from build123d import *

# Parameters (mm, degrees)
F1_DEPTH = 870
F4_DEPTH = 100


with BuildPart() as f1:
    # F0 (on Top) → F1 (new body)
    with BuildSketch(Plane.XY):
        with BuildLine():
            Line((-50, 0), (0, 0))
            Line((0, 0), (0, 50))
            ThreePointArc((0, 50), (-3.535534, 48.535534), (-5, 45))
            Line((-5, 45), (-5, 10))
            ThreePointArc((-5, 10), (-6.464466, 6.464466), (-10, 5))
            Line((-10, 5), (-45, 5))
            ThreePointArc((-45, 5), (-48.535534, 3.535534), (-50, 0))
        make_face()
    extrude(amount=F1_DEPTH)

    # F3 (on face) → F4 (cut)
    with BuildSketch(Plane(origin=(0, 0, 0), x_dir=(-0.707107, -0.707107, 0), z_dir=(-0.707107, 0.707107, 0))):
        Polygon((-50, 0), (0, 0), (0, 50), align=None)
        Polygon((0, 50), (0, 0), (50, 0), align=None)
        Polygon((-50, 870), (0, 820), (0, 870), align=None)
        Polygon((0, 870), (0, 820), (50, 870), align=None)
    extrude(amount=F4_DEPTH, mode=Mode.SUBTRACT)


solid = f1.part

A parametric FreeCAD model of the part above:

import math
import FreeCAD as App
import Part
import Sketcher
from FreeCAD import Vector

doc = App.newDocument("Part")
body = doc.addObject("PartDesign::Body", "Body")

# Sketch on XY plane
sketch1 = body.newObject("Sketcher::SketchObject", "Sketch")
sketch1.AttachmentSupport = (doc.getObject("XY_Plane"), [""])
sketch1.MapMode = "FlatFace"
sketch1.addGeometry(Part.LineSegment(Vector(-50, 0, 0), Vector(0, 0, 0)), False)
sketch1.addGeometry(Part.LineSegment(Vector(0, 0, 0), Vector(0, 50, 0)), False)
sketch1.addGeometry(Part.ArcOfCircle(Part.Circle(Vector(0, 45, 0), Vector(0, 0, 1), 5), math.radians(90), math.radians(180)), False)
sketch1.addGeometry(Part.LineSegment(Vector(-5, 45, 0), Vector(-5, 10, 0)), False)
sketch1.addGeometry(Part.ArcOfCircle(Part.Circle(Vector(-10, 10, 0), Vector(0, 0, 1), 5), math.radians(-90), math.radians(0)), False)
sketch1.addGeometry(Part.LineSegment(Vector(-10, 5, 0), Vector(-45, 5, 0)), False)
sketch1.addGeometry(Part.ArcOfCircle(Part.Circle(Vector(-45, 0, 0), Vector(0, 0, 1), 5), math.radians(90), math.radians(180)), False)
sketch1.addConstraint(Sketcher.Constraint("Coincident", 0, 2, 1, 1))
sketch1.addConstraint(Sketcher.Constraint("Coincident", 1, 2, 2, 1))
sketch1.addConstraint(Sketcher.Constraint("Tangent", 2, 2, 3, 1))
sketch1.addConstraint(Sketcher.Constraint("Tangent", 3, 2, 4, 2))
sketch1.addConstraint(Sketcher.Constraint("Tangent", 4, 1, 5, 1))
sketch1.addConstraint(Sketcher.Constraint("Tangent", 5, 2, 6, 1))
sketch1.addConstraint(Sketcher.Constraint("Coincident", 6, 2, 0, 1))
sketch1.addConstraint(Sketcher.Constraint("Horizontal", 0))
sketch1.addConstraint(Sketcher.Constraint("Vertical", 1))
sketch1.addConstraint(Sketcher.Constraint("Vertical", 3))
sketch1.addConstraint(Sketcher.Constraint("Horizontal", 5))
sketch1.addConstraint(Sketcher.Constraint("Coincident", 0, 2, -1, 1))
sketch1.addConstraint(Sketcher.Constraint("Equal", 2, 4))
sketch1.addConstraint(Sketcher.Constraint("Equal", 4, 6))
sketch1.addConstraint(Sketcher.Constraint("PointOnObject", 2, 3, -2))
sketch1.addConstraint(Sketcher.Constraint("PointOnObject", 6, 3, -1))
sketch1.addConstraint(Sketcher.Constraint("Equal", 0, 1))
sketch1.addConstraint(Sketcher.Constraint("Radius", 2, 5.0))
sketch1.addConstraint(Sketcher.Constraint("DistanceX", 0, 1, 0, 2, 50.0))
pad1 = body.newObject("PartDesign::Pad", "Pad")
pad1.Profile = sketch1
pad1.Length = 870

# Sketch on an angled plane
sketch2 = body.newObject("Sketcher::SketchObject", "Sketch001")
sketch2.Placement = App.Placement(Vector(0, 0, 0), App.Rotation(Vector(-0.707106781, -0.707106781, 0), Vector(0, 0, 0.999999999), Vector(-0.707106781, 0.707106781, 0), "ZXY"))
sketch2.addGeometry(Part.LineSegment(Vector(-50, 0, 0), Vector(50, 0, 0)), False)
sketch2.addGeometry(Part.LineSegment(Vector(50, 0, 0), Vector(0, 50, 0)), False)
sketch2.addGeometry(Part.LineSegment(Vector(0, 50, 0), Vector(-50, 0, 0)), False)
sketch2.addGeometry(Part.LineSegment(Vector(-50, 870, 0), Vector(0, 820, 0)), False)
sketch2.addGeometry(Part.LineSegment(Vector(0, 820, 0), Vector(50, 870, 0)), False)
sketch2.addGeometry(Part.LineSegment(Vector(50, 870, 0), Vector(-50, 870, 0)), False)
sketch2.addConstraint(Sketcher.Constraint("Coincident", 0, 2, 1, 1))
sketch2.addConstraint(Sketcher.Constraint("Coincident", 1, 2, 2, 1))
sketch2.addConstraint(Sketcher.Constraint("Coincident", 2, 2, 0, 1))
sketch2.addConstraint(Sketcher.Constraint("Coincident", 3, 2, 4, 1))
sketch2.addConstraint(Sketcher.Constraint("Coincident", 4, 2, 5, 1))
sketch2.addConstraint(Sketcher.Constraint("Coincident", 5, 2, 3, 1))
sketch2.addConstraint(Sketcher.Constraint("Horizontal", 0))
sketch2.addConstraint(Sketcher.Constraint("Horizontal", 5))
sketch2.addConstraint(Sketcher.Constraint("Symmetric", 0, 2, 2, 2, -1, 1))
sketch2.addConstraint(Sketcher.Constraint("PointOnObject", 1, 2, -2))
sketch2.addConstraint(Sketcher.Constraint("PointOnObject", 3, 2, -2))
sketch2.addConstraint(Sketcher.Constraint("Perpendicular", 1, 2))
sketch2.addConstraint(Sketcher.Constraint("Perpendicular", 2, 3))
sketch2.addConstraint(Sketcher.Constraint("Perpendicular", 3, 4))
sketch2.addConstraint(Sketcher.Constraint("Vertical", 0, 2, 4, 2))
sketch2.addConstraint(Sketcher.Constraint("DistanceX", 0, 1, 0, 2, 100.0))
sketch2.addConstraint(Sketcher.Constraint("DistanceY", -1, 1, 3, 2, 819.999999))
pocket1 = body.newObject("PartDesign::Pocket", "Pocket")
pocket1.Profile = sketch2
pocket1.Length = 100
pocket1.Reversed = True

doc.recompute()
